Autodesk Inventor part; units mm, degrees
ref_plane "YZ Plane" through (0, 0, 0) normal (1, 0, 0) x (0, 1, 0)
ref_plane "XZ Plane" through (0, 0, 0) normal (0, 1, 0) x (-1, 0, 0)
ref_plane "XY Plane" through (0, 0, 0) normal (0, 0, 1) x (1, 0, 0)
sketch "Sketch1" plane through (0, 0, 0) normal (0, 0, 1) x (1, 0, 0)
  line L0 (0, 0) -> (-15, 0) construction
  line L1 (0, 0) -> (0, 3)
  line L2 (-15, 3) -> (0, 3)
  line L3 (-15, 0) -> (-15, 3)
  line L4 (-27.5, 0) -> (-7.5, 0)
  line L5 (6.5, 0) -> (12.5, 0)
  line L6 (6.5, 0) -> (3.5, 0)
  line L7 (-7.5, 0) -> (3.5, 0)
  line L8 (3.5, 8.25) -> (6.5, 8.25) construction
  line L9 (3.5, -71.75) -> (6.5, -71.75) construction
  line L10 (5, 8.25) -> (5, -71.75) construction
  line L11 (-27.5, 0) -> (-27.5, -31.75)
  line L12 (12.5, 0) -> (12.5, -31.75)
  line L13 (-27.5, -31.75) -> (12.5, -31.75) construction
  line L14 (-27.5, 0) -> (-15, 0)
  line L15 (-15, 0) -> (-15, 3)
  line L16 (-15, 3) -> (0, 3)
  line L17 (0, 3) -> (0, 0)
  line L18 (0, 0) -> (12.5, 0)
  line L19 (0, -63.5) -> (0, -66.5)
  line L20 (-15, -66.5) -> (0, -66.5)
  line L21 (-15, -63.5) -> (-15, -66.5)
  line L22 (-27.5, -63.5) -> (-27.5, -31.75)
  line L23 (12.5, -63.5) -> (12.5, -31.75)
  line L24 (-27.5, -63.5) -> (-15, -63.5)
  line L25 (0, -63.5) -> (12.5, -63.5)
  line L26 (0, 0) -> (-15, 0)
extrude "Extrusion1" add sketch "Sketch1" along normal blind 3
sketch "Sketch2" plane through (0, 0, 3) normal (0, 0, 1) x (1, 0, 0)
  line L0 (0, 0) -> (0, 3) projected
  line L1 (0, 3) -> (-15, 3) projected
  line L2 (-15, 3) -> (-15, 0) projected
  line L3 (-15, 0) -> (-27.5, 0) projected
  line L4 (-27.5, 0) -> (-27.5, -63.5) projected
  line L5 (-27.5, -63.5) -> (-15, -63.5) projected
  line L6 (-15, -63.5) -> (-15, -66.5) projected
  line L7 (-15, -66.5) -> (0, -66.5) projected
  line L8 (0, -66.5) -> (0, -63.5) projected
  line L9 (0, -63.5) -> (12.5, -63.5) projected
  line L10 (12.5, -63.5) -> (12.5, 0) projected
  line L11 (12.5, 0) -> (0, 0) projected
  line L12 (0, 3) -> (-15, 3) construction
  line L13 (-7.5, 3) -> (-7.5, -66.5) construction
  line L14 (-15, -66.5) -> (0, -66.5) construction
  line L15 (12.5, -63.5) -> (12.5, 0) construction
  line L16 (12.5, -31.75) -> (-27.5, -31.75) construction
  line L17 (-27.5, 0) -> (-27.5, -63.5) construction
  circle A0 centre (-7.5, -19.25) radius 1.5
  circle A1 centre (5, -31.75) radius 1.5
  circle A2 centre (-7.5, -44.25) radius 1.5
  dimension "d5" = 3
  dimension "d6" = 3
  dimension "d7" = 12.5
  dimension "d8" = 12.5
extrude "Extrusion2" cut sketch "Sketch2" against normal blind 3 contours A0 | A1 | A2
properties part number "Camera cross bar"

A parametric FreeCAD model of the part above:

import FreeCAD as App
import Part
import Sketcher
Q = App.Units.Quantity


def add_polygon(sketch, points):
    """Adds a closed chain of lines whose ends are joined by coincident constraints."""
    first, n = sketch.GeometryCount, len(points)
    for a, b in zip(points, points[1:] + points[:1]):
        sketch.addGeometry(Part.LineSegment(App.Vector(*a, 0), App.Vector(*b, 0)), False)
    for i in range(n):
        sketch.addConstraint(Sketcher.Constraint("Coincident", first + i, 2, first + (i + 1) % n, 1))

doc = App.newDocument("Part")
body = doc.addObject("PartDesign::Body", "Body")

sketch1 = doc.addObject("Sketcher::SketchObject", "Sketch")
body.addObject(sketch1)
sketch1.AttachmentSupport = (doc.XY_Plane, [""])
sketch1.MapMode = "FlatFace"
add_polygon(sketch1, [(-15, 3), (-15, 0), (-27.5, 0), (-27.5, -63.5), (-15, -63.5), (-15, -66.5), (0, -66.5), (0, -63.5), (12.5, -63.5), (12.5, 0), (0, 0), (0, 3)])
sketch1.addConstraint(Sketcher.Constraint("Vertical", 0))
sketch1.addConstraint(Sketcher.Constraint("Horizontal", 1))
sketch1.addConstraint(Sketcher.Constraint("Vertical", 2))
sketch1.addConstraint(Sketcher.Constraint("Horizontal", 3))
sketch1.addConstraint(Sketcher.Constraint("Vertical", 4))
sketch1.addConstraint(Sketcher.Constraint("Horizontal", 5))
sketch1.addConstraint(Sketcher.Constraint("Vertical", 6))
sketch1.addConstraint(Sketcher.Constraint("Horizontal", 7))
sketch1.addConstraint(Sketcher.Constraint("Vertical", 8))
sketch1.addConstraint(Sketcher.Constraint("Horizontal", 9))
sketch1.addConstraint(Sketcher.Constraint("Vertical", 10))
sketch1.addConstraint(Sketcher.Constraint("Horizontal", 11))
sketch1.addConstraint(Sketcher.Constraint("Coincident", 9, 2, -1, 1))
sketch1.addConstraint(Sketcher.Constraint("PointOnObject", 0, 2, -1))
sketch1.addConstraint(Sketcher.Constraint("PointOnObject", 5, 2, -2))
sketch1.addConstraint(Sketcher.Constraint("Horizontal", 3, 2, 6, 2))
sketch1.addConstraint(Sketcher.Constraint("Vertical", 0, 2, 3, 2))
sketch1.addConstraint(Sketcher.Constraint("Equal", 3, 7))
sketch1.addConstraint(Sketcher.Constraint("Equal", 0, 4))
sketch1.addConstraint(Sketcher.Constraint("DistanceX", 5, 1, 5, 2, Q("15 mm")))
sketch1.addConstraint(Sketcher.Constraint("DistanceY", 0, 2, 0, 1, Q("3 mm")))
sketch1.addConstraint(Sketcher.Constraint("DistanceX", 1, 2, 1, 1, Q("12.5 mm")))
sketch1.addConstraint(Sketcher.Constraint("DistanceY", 2, 2, 2, 1, Q("63.5 mm")))
pad1 = doc.addObject("PartDesign::Pad", "Pad")
body.addObject(pad1)
pad1.Profile = sketch1
pad1.Length = 3

sketch2 = doc.addObject("Sketcher::SketchObject", "Sketch001")
body.addObject(sketch2)
sketch2.AttachmentSupport = (doc.XY_Plane, [""])
sketch2.MapMode = "FlatFace"
sketch2.AttachmentOffset = App.Placement(App.Vector(0, 0, 3), App.Rotation())
sketch2.addGeometry(Part.Circle(App.Vector(-7.5, -19.2, 0), App.Vector(0, 0, 1), 1.5), False)
sketch2.addGeometry(Part.Circle(App.Vector(5, -31.8, 0), App.Vector(0, 0, 1), 1.5), False)
sketch2.addGeometry(Part.Circle(App.Vector(-7.5, -44.2, 0), App.Vector(0, 0, 1), 1.5), False)
sketch2.addConstraint(Sketcher.Constraint("Equal", 0, 1))
sketch2.addConstraint(Sketcher.Constraint("Equal", 1, 2))
sketch2.addConstraint(Sketcher.Constraint("Vertical", 0, 3, 2, 3))
sketch2.addConstraint(Sketcher.Constraint("Diameter", 0, Q("3 mm")))
sketch2.addConstraint(Sketcher.Constraint("DistanceX", 0, 3, 1, 3, Q("12.5 mm")))
sketch2.addConstraint(Sketcher.Constraint("DistanceY", 1, 3, 0, 3, Q("12.5 mm")))
sketch2.addConstraint(Sketcher.Constraint("DistanceY", 2, 3, 1, 3, Q("12.5 mm")))
sketch2.addConstraint(Sketcher.Constraint("DistanceX", -1, 1, 1, 3, Q("5 mm")))
sketch2.addConstraint(Sketcher.Constraint("DistanceY", 0, 3, -1, 1, Q("19.25 mm")))
pocket1 = doc.addObject("PartDesign::Pocket", "Pocket")
body.addObject(pocket1)
pocket1.Profile = sketch2
pocket1.Length = 3

doc.recompute()
